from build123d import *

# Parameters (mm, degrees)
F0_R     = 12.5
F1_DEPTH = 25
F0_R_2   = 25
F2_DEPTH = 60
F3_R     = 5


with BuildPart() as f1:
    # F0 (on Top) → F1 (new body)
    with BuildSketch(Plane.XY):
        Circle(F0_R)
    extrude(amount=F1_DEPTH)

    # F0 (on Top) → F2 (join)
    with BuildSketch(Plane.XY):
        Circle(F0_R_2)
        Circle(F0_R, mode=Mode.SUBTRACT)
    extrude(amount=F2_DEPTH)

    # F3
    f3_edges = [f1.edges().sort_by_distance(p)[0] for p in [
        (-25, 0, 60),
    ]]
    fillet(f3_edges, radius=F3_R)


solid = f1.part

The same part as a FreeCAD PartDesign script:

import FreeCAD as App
import Part
import Sketcher


def edges_at(feature, points):
    """Names of the edges that pass closest to the given points."""
    edges = feature.Shape.Edges
    near = lambda p: min(range(len(edges)), key=lambda i: edges[i].distToShape(Part.Vertex(*p))[0])
    return sorted({f"Edge{near(p) + 1}" for p in points})

doc = App.newDocument("Part")
body = doc.addObject("PartDesign::Body", "Body")

# Sketch on XY plane
sketch1 = doc.addObject("Sketcher::SketchObject", "Sketch")
body.addObject(sketch1)
sketch1.AttachmentSupport = (doc.XY_Plane, [""])
sketch1.MapMode = "FlatFace"
sketch1.addGeometry(Part.Circle(App.Vector(0, 0, 0), App.Vector(0, 0, 1), 12), False)
sketch1.addConstraint([
    Sketcher.Constraint("Coincident", 0, 3, -1, 1),
    Sketcher.Constraint("Diameter", 0, 25.0),
])
pad1 = doc.addObject("PartDesign::Pad", "Pad")
body.addObject(pad1)
pad1.Profile = sketch1
pad1.Length = 25

# Sketch on XY plane
sketch2 = doc.addObject("Sketcher::SketchObject", "Sketch001")
body.addObject(sketch2)
sketch2.AttachmentSupport = (doc.XY_Plane, [""])
sketch2.MapMode = "FlatFace"
sketch2.addGeometry([
    Part.Circle(App.Vector(0, 0, 0), App.Vector(0, 0, 1), 25),
    Part.Circle(App.Vector(0, 0, 0), App.Vector(0, 0, 1), 12),
], False)
sketch2.addConstraint([
    Sketcher.Constraint("Coincident", 0, 3, -1, 1),
    Sketcher.Constraint("Coincident", 1, 3, -1, 1),
    Sketcher.Constraint("Diameter", 0, 50.0),
    Sketcher.Constraint("Diameter", 1, 25.0),
])
pad2 = doc.addObject("PartDesign::Pad", "Pad001")
body.addObject(pad2)
pad2.Profile = sketch2
pad2.Length = 60
doc.recompute()

fillet = doc.addObject("PartDesign::Fillet", "Fillet")
body.addObject(fillet)
fillet.Base = (pad2, edges_at(pad2, [(-25, 0, 60)]))
fillet.Radius = 5

doc.recompute()
